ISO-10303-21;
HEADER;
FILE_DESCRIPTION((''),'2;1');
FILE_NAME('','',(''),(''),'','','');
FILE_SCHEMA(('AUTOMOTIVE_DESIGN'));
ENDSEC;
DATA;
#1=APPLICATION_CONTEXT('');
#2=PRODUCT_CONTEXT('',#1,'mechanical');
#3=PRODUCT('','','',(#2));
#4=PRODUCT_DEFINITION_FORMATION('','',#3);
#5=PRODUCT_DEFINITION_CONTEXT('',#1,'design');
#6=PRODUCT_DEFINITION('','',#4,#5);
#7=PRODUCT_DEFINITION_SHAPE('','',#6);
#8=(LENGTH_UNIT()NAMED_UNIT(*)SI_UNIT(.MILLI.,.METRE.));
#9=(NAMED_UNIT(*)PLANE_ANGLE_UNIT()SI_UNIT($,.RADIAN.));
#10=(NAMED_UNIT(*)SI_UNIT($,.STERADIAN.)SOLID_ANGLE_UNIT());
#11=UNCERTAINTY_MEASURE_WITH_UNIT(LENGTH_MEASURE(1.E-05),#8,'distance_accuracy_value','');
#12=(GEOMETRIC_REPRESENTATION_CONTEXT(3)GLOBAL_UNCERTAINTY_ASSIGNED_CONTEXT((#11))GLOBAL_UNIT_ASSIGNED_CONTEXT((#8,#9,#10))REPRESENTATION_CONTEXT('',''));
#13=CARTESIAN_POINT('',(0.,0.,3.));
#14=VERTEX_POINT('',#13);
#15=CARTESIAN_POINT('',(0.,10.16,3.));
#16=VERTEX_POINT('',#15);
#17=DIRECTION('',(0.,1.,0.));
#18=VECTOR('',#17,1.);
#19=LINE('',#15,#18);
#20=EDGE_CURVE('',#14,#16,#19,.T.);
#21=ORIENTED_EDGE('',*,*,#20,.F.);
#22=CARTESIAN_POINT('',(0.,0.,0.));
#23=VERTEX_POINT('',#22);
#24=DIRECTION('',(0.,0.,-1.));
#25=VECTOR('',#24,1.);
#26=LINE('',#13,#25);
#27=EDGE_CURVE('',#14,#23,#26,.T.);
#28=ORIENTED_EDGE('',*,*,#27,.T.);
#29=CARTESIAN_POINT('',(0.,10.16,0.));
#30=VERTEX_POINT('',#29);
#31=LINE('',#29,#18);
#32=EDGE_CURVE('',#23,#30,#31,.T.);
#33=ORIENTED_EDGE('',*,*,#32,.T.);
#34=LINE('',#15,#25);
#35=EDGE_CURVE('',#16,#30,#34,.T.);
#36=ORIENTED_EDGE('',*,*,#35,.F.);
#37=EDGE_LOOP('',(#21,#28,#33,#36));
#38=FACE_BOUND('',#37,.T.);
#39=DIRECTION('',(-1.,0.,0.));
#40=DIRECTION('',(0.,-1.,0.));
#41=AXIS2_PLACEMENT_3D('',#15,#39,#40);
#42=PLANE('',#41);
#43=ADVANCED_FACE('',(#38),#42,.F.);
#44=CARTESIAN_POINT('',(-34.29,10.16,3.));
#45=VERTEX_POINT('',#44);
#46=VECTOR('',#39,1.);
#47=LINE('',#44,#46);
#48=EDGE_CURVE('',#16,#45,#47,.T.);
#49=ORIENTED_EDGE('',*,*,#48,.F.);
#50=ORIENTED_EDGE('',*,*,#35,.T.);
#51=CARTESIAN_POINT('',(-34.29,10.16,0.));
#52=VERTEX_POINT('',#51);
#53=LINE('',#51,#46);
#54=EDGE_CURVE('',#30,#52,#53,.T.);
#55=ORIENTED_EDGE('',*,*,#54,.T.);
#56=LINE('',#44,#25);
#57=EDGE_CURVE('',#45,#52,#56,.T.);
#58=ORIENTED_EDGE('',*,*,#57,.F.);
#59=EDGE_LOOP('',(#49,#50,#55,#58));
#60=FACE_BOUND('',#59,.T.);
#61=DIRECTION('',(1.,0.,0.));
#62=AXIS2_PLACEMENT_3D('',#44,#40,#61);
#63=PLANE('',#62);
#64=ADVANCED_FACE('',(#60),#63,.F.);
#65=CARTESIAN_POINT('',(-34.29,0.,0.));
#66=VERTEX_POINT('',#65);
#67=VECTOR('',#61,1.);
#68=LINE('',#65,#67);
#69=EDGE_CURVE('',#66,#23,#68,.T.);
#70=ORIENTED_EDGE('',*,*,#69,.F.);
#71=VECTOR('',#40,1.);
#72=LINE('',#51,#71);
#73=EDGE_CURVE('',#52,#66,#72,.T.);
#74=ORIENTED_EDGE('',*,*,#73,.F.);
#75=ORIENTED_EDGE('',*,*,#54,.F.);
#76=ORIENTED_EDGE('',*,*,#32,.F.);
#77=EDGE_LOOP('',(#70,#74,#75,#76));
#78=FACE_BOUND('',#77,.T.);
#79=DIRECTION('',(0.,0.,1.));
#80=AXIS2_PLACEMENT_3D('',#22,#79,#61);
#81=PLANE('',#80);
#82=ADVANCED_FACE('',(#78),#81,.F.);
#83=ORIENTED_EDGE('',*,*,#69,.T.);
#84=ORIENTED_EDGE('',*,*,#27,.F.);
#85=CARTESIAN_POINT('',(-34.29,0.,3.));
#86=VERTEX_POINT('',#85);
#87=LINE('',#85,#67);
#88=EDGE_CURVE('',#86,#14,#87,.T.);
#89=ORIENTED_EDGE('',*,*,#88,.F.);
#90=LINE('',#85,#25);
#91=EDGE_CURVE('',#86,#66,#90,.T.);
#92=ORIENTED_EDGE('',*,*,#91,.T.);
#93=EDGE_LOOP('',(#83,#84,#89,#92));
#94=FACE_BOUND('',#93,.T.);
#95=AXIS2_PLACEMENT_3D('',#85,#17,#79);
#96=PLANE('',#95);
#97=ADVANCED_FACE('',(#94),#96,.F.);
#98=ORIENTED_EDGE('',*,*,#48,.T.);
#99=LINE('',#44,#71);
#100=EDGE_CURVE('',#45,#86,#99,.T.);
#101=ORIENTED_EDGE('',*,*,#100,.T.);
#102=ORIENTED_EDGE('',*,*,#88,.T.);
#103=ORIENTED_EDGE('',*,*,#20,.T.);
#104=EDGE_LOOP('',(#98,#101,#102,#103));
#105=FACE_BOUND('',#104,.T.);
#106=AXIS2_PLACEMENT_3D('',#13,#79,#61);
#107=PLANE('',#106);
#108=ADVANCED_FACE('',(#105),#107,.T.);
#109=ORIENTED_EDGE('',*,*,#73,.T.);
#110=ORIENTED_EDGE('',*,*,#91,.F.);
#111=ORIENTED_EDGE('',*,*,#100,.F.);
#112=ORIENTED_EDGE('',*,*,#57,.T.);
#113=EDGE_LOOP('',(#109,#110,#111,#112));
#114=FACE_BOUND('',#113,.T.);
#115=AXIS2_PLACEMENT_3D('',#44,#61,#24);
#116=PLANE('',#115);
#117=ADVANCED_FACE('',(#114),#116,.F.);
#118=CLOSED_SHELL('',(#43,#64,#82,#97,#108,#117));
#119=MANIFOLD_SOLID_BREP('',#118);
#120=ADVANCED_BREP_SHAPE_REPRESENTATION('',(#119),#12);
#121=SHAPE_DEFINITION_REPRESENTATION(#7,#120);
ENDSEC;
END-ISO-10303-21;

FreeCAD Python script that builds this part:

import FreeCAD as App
import Part
import Sketcher
Q = App.Units.Quantity


def add_polygon(sketch, points):
    """Adds a closed chain of lines whose ends are joined by coincident constraints."""
    first, n = sketch.GeometryCount, len(points)
    for a, b in zip(points, points[1:] + points[:1]):
        sketch.addGeometry(Part.LineSegment(App.Vector(*a, 0), App.Vector(*b, 0)), False)
    for i in range(n):
        sketch.addConstraint(Sketcher.Constraint("Coincident", first + i, 2, first + (i + 1) % n, 1))

doc = App.newDocument("Part")
body = doc.addObject("PartDesign::Body", "Body")

# Sketch on XY plane
sketch1 = doc.addObject("Sketcher::SketchObject", "Sketch")
body.addObject(sketch1)
sketch1.AttachmentSupport = (doc.XY_Plane, [""])
sketch1.MapMode = "FlatFace"
add_polygon(sketch1, [(-34, 10), (-34, 0), (0, 0), (0, 10)])  # lines 0-3
sketch1.addConstraint([
    Sketcher.Constraint("Vertical", 0),
    Sketcher.Constraint("Horizontal", 1),
    Sketcher.Constraint("Vertical", 2),
    Sketcher.Constraint("Horizontal", 3),
    Sketcher.Constraint("Coincident", 1, 2, -1, 1),
    Sketcher.Constraint("DistanceY", 0, 2, 0, 1, Q("0.4 in")),
    Sketcher.Constraint("DistanceX", 1, 1, 1, 2, Q("1.35 in")),
])
pad1 = doc.addObject("PartDesign::Pad", "Pad")
body.addObject(pad1)
pad1.Profile = sketch1
pad1.Length = 3

doc.recompute()
